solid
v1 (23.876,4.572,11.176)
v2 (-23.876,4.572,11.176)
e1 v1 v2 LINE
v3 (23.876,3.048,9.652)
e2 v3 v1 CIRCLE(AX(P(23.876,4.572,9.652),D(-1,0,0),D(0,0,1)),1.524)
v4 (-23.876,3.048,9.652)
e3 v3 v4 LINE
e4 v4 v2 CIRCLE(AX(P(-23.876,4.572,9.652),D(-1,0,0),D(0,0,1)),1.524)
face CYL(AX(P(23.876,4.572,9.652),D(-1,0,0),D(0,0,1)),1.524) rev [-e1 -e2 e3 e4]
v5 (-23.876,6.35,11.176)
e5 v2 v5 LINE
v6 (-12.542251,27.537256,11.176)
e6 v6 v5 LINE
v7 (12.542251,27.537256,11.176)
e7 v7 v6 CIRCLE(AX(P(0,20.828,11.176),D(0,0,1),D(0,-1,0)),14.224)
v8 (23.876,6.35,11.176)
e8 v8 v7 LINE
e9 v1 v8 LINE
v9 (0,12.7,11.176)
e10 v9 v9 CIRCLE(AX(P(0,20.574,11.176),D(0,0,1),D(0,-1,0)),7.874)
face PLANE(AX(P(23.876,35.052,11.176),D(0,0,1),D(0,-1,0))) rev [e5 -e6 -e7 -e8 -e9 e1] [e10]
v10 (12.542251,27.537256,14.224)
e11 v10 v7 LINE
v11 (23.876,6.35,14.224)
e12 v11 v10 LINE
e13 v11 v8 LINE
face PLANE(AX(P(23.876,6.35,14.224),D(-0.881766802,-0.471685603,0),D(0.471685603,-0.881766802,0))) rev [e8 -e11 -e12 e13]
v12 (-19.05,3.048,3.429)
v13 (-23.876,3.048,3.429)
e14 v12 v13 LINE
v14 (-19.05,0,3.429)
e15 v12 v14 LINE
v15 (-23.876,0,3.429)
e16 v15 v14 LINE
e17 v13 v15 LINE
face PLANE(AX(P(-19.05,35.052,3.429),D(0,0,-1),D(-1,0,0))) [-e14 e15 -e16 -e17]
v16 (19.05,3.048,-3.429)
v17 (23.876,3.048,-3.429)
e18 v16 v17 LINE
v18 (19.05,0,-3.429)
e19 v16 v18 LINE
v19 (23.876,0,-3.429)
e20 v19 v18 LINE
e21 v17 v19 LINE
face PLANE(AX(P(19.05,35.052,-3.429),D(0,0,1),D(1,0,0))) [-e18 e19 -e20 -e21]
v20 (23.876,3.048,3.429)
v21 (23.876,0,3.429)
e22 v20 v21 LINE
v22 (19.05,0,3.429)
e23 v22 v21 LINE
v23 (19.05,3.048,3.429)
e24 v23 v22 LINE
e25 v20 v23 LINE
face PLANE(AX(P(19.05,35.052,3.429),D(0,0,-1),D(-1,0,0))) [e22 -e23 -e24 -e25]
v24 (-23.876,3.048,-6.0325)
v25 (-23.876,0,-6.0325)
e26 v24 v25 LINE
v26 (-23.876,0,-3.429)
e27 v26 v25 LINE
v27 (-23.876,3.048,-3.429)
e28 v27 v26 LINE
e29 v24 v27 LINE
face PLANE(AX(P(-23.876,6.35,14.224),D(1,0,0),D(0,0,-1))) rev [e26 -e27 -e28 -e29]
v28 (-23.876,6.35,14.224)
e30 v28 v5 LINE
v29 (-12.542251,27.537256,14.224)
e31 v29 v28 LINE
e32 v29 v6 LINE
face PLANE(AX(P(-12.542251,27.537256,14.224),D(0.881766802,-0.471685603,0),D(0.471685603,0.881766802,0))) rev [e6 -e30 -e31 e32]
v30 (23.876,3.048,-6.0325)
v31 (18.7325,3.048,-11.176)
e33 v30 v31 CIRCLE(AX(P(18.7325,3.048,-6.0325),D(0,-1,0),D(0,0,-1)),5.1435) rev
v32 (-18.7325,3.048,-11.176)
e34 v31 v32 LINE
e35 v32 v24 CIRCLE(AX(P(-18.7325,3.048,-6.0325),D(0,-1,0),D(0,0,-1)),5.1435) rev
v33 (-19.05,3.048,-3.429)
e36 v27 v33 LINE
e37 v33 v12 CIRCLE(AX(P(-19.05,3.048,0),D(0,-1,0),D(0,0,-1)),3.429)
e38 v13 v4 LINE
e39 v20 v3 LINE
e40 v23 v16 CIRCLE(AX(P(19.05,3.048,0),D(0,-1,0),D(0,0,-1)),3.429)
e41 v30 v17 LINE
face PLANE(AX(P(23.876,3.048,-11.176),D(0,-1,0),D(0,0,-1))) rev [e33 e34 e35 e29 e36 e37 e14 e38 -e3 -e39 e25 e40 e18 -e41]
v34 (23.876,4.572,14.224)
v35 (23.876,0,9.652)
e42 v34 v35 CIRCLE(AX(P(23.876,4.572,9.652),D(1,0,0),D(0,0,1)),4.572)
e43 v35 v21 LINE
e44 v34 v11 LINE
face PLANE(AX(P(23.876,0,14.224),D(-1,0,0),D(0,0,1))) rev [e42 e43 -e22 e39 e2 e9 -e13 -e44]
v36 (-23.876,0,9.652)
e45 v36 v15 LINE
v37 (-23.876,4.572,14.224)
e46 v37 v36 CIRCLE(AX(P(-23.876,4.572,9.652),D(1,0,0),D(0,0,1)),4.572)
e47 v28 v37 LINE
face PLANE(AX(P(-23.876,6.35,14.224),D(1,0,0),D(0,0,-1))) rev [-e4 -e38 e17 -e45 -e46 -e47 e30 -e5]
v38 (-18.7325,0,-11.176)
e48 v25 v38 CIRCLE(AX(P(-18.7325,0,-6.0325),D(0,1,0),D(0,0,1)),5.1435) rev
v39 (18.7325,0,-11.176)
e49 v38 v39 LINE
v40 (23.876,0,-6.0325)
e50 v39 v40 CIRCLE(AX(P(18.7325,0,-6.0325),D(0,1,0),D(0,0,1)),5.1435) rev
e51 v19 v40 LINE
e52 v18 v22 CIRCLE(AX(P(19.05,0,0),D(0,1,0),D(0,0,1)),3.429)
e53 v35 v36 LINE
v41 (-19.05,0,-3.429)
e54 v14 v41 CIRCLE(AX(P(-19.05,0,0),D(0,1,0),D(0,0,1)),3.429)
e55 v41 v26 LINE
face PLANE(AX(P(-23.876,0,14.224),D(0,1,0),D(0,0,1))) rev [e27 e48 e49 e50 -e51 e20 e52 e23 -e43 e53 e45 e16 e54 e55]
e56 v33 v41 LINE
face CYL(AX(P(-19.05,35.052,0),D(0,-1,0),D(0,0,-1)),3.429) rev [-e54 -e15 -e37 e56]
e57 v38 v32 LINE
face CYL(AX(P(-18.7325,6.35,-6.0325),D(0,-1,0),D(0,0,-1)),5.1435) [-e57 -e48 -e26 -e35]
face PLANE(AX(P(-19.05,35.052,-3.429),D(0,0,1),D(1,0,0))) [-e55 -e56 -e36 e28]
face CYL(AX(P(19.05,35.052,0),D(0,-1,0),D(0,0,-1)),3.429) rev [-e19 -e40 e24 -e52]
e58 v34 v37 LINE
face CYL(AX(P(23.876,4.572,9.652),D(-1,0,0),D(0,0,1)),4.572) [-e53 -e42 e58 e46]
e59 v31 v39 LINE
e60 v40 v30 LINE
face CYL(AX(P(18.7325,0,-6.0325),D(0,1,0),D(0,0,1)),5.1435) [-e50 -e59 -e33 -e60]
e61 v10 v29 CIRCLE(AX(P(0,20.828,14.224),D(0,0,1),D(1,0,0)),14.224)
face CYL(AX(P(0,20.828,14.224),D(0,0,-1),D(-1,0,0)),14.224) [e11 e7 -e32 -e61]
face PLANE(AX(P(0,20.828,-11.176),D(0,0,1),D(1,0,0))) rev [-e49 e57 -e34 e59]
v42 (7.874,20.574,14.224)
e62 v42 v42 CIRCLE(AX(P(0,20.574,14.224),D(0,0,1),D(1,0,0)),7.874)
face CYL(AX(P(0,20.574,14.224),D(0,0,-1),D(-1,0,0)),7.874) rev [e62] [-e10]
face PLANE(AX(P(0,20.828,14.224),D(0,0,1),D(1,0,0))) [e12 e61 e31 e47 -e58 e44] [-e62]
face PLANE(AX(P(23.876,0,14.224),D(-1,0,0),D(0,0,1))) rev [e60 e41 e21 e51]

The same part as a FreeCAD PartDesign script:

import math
import FreeCAD as App
import Part
import Sketcher

V = App.Vector
Q = App.Units.Quantity


def edges_at(feature, points):
    """Names of the edges that pass closest to the given points."""
    edges = feature.Shape.Edges
    near = lambda p: min(range(len(edges)), key=lambda i: edges[i].distToShape(Part.Vertex(*p))[0])
    return sorted({f"Edge{near(p) + 1}" for p in points})

doc = App.newDocument("Part")
body = doc.addObject("PartDesign::Body", "Body")

# Sketch on XY plane
sketch1 = body.newObject("Sketcher::SketchObject", "Sketch")
sketch1.AttachmentSupport = (doc.getObject("XY_Plane"), [""])
sketch1.MapMode = "FlatFace"
sketch1.addGeometry([
    Part.LineSegment(V(-24, 0, 0), V(24, 0, 0)),  # 0
    Part.LineSegment(V(24, 0, 0), V(24, 6, 0)),  # 1
    Part.LineSegment(V(24, 6, 0), V(13, 28, 0)),  # 2
    Part.ArcOfCircle(Part.Circle(V(0, 21, 0), V(0, 0, 1), 14), math.radians(28), math.radians(152)),  # 3
    Part.LineSegment(V(-13, 28, 0), V(-24, 6, 0)),  # 4
    Part.LineSegment(V(-24, 6, 0), V(-24, 0, 0)),  # 5
    Part.Circle(V(0, 21, 0), V(0, 0, 1), 8),  # 6
], False)
sketch1.addConstraint([
    Sketcher.Constraint("Coincident", 0, 2, 1, 1),
    Sketcher.Constraint("Coincident", 1, 2, 2, 1),
    Sketcher.Constraint("Tangent", 2, 2, 3, 1),
    Sketcher.Constraint("Tangent", 3, 2, 4, 1),
    Sketcher.Constraint("Coincident", 4, 2, 5, 1),
    Sketcher.Constraint("Coincident", 5, 2, 0, 1),
    Sketcher.Constraint("Horizontal", 0),
    Sketcher.Constraint("Vertical", 1),
    Sketcher.Constraint("Vertical", 5),
    Sketcher.Constraint("Symmetric", 0, 2, 5, 2, -1, 1),
    Sketcher.Constraint("Symmetric", 2, 2, 3, 2, -2),
    Sketcher.Constraint("PointOnObject", 6, 3, -2),
    Sketcher.Constraint("Diameter", 6, Q("0.62 in")),
    Sketcher.Constraint("Radius", 3, Q("0.56 in")),
    Sketcher.Constraint("DistanceX", 0, 1, 0, 2, Q("1.88 in")),
    Sketcher.Constraint("DistanceY", 1, 1, 1, 2, Q("0.25 in")),
    Sketcher.Constraint("DistanceY", -1, 1, 3, 3, Q("0.82 in")),
    Sketcher.Constraint("DistanceY", -1, 1, 6, 3, Q("0.81 in")),
])
pad1 = body.newObject("PartDesign::Pad", "Pad")
pad1.Profile = sketch1
pad1.Type = "TwoLengths"
pad1.Length = Q("0.56 in")
pad1.Length2 = Q("0.44 in")

# Sketch on XZ plane
sketch2 = body.newObject("Sketcher::SketchObject", "Sketch001")
sketch2.AttachmentSupport = (doc.getObject("XZ_Plane"), [""])
sketch2.MapMode = "FlatFace"
sketch2.addGeometry([
    Part.LineSegment(V(-23.9, -3.4, 0), V(-23.9, 3.4, 0)),  # 0
    Part.LineSegment(V(-23.9, 3.4, 0), V(-19.1, 3.4, 0)),  # 1
    Part.ArcOfCircle(Part.Circle(V(-19.1, 0, 0), V(0, 0, 1), 3.4), math.radians(-90), math.radians(90)),  # 2
    Part.LineSegment(V(-19.1, -3.4, 0), V(-23.9, -3.4, 0)),  # 3
    Part.LineSegment(V(23.9, -3.4, 0), V(19.1, -3.4, 0)),  # 4
    Part.ArcOfCircle(Part.Circle(V(19.1, 0, 0), V(0, 0, 1), 3.4), math.radians(90), math.radians(270)),  # 5
    Part.LineSegment(V(19.1, 3.4, 0), V(23.9, 3.4, 0)),  # 6
    Part.LineSegment(V(23.9, 3.4, 0), V(23.9, -3.4, 0)),  # 7
], False)
sketch2.addConstraint([
    Sketcher.Constraint("Coincident", 0, 2, 1, 1),
    Sketcher.Constraint("Tangent", 1, 2, 2, 2),
    Sketcher.Constraint("Tangent", 2, 1, 3, 1),
    Sketcher.Constraint("Coincident", 3, 2, 0, 1),
    Sketcher.Constraint("Tangent", 4, 2, 5, 2),
    Sketcher.Constraint("Tangent", 5, 1, 6, 1),
    Sketcher.Constraint("Coincident", 6, 2, 7, 1),
    Sketcher.Constraint("Coincident", 7, 2, 4, 1),
    Sketcher.Constraint("Vertical", 0),
    Sketcher.Constraint("Horizontal", 1),
    Sketcher.Constraint("Horizontal", 3),
    Sketcher.Constraint("Horizontal", 4),
    Sketcher.Constraint("Horizontal", 6),
    Sketcher.Constraint("Vertical", 7),
    Sketcher.Constraint("Equal", 2, 5),
    Sketcher.Constraint("Symmetric", 2, 3, 5, 3, -1, 1),
    Sketcher.Constraint("Symmetric", 0, 2, 6, 2, -2),
    Sketcher.Constraint("Radius", 2, Q("0.135 in")),
    Sketcher.Constraint("DistanceX", 1, 1, 1, 2, Q("0.19 in")),
    Sketcher.Constraint("DistanceX", 2, 3, 5, 3, Q("1.5 in")),
])
pocket1 = body.newObject("PartDesign::Pocket", "Pocket")
pocket1.Profile = sketch2
pocket1.Type = "ThroughAll"

# Sketch on YZ plane
sketch3 = body.newObject("Sketcher::SketchObject", "Sketch002")
sketch3.AttachmentSupport = (doc.getObject("YZ_Plane"), [""])
sketch3.MapMode = "FlatFace"
sketch3.AttachmentOffset = App.Placement(V(0, 0, -0.94 * 25.4), App.Rotation())
sketch3.addGeometry([
    Part.LineSegment(V(35.1, 11.2, 0), V(35.1, -11.2, 0)),  # 0
    Part.LineSegment(V(35.1, -11.2, 0), V(3, -11.2, 0)),  # 1
    Part.LineSegment(V(3, -11.2, 0), V(3, 9.7, 0)),  # 2
    Part.ArcOfCircle(Part.Circle(V(4.6, 9.7, 0), V(0, 0, 1), 1.5), math.radians(90), math.radians(180)),  # 3
    Part.LineSegment(V(4.6, 11.2, 0), V(35.1, 11.2, 0)),  # 4
    Part.LineSegment(V(0, 9.7, 0), V(0, 14.2, 0)),  # 5
    Part.LineSegment(V(0, 14.2, 0), V(4.6, 14.2, 0)),  # 6
    Part.ArcOfCircle(Part.Circle(V(4.6, 9.7, 0), V(0, 0, 1), 4.6), math.radians(90), math.radians(180)),  # 7
], False)
sketch3.addConstraint([
    Sketcher.Constraint("Coincident", 0, 2, 1, 1),
    Sketcher.Constraint("Coincident", 1, 2, 2, 1),
    Sketcher.Constraint("Tangent", 2, 2, 3, 2),
    Sketcher.Constraint("Tangent", 3, 1, 4, 1),
    Sketcher.Constraint("Coincident", 4, 2, 0, 1),
    Sketcher.Constraint("Coincident", 5, 2, 6, 1),
    Sketcher.Constraint("Tangent", 6, 2, 7, 1),
    Sketcher.Constraint("Tangent", 7, 2, 5, 1),
    Sketcher.Constraint("Vertical", 0),
    Sketcher.Constraint("Horizontal", 1),
    Sketcher.Constraint("Vertical", 2),
    Sketcher.Constraint("Horizontal", 4),
    Sketcher.Constraint("Vertical", 5),
    Sketcher.Constraint("Horizontal", 6),
    Sketcher.Constraint("Coincident", 7, 3, 3, 3),
    Sketcher.Constraint("PointOnObject", 5, 2, -2),
    Sketcher.Constraint("Radius", 3, Q("0.06 in")),
    Sketcher.Constraint("Radius", 7, Q("0.18 in")),
    Sketcher.Constraint("DistanceX", 4, 1, 4, 2, Q("1.2 in")),
    Sketcher.Constraint("DistanceY", 1, 2, 5, 2, Q("1 in")),
    Sketcher.Constraint("DistanceY", -1, 1, 3, 3, Q("0.38 in")),
])
pocket2 = body.newObject("PartDesign::Pocket", "Pocket001")
pocket2.Profile = sketch3
pocket2.Type = "ThroughAll"
pocket2.Reversed = True
doc.recompute()

fillet = body.newObject("PartDesign::Fillet", "Fillet")
fillet.Base = (pocket2, edges_at(pocket2, [(23.876, 1.524, -11.176), (-23.876, 1.524, -11.176)]))
fillet.Radius = Q("0.2025 in")

doc.recompute()
